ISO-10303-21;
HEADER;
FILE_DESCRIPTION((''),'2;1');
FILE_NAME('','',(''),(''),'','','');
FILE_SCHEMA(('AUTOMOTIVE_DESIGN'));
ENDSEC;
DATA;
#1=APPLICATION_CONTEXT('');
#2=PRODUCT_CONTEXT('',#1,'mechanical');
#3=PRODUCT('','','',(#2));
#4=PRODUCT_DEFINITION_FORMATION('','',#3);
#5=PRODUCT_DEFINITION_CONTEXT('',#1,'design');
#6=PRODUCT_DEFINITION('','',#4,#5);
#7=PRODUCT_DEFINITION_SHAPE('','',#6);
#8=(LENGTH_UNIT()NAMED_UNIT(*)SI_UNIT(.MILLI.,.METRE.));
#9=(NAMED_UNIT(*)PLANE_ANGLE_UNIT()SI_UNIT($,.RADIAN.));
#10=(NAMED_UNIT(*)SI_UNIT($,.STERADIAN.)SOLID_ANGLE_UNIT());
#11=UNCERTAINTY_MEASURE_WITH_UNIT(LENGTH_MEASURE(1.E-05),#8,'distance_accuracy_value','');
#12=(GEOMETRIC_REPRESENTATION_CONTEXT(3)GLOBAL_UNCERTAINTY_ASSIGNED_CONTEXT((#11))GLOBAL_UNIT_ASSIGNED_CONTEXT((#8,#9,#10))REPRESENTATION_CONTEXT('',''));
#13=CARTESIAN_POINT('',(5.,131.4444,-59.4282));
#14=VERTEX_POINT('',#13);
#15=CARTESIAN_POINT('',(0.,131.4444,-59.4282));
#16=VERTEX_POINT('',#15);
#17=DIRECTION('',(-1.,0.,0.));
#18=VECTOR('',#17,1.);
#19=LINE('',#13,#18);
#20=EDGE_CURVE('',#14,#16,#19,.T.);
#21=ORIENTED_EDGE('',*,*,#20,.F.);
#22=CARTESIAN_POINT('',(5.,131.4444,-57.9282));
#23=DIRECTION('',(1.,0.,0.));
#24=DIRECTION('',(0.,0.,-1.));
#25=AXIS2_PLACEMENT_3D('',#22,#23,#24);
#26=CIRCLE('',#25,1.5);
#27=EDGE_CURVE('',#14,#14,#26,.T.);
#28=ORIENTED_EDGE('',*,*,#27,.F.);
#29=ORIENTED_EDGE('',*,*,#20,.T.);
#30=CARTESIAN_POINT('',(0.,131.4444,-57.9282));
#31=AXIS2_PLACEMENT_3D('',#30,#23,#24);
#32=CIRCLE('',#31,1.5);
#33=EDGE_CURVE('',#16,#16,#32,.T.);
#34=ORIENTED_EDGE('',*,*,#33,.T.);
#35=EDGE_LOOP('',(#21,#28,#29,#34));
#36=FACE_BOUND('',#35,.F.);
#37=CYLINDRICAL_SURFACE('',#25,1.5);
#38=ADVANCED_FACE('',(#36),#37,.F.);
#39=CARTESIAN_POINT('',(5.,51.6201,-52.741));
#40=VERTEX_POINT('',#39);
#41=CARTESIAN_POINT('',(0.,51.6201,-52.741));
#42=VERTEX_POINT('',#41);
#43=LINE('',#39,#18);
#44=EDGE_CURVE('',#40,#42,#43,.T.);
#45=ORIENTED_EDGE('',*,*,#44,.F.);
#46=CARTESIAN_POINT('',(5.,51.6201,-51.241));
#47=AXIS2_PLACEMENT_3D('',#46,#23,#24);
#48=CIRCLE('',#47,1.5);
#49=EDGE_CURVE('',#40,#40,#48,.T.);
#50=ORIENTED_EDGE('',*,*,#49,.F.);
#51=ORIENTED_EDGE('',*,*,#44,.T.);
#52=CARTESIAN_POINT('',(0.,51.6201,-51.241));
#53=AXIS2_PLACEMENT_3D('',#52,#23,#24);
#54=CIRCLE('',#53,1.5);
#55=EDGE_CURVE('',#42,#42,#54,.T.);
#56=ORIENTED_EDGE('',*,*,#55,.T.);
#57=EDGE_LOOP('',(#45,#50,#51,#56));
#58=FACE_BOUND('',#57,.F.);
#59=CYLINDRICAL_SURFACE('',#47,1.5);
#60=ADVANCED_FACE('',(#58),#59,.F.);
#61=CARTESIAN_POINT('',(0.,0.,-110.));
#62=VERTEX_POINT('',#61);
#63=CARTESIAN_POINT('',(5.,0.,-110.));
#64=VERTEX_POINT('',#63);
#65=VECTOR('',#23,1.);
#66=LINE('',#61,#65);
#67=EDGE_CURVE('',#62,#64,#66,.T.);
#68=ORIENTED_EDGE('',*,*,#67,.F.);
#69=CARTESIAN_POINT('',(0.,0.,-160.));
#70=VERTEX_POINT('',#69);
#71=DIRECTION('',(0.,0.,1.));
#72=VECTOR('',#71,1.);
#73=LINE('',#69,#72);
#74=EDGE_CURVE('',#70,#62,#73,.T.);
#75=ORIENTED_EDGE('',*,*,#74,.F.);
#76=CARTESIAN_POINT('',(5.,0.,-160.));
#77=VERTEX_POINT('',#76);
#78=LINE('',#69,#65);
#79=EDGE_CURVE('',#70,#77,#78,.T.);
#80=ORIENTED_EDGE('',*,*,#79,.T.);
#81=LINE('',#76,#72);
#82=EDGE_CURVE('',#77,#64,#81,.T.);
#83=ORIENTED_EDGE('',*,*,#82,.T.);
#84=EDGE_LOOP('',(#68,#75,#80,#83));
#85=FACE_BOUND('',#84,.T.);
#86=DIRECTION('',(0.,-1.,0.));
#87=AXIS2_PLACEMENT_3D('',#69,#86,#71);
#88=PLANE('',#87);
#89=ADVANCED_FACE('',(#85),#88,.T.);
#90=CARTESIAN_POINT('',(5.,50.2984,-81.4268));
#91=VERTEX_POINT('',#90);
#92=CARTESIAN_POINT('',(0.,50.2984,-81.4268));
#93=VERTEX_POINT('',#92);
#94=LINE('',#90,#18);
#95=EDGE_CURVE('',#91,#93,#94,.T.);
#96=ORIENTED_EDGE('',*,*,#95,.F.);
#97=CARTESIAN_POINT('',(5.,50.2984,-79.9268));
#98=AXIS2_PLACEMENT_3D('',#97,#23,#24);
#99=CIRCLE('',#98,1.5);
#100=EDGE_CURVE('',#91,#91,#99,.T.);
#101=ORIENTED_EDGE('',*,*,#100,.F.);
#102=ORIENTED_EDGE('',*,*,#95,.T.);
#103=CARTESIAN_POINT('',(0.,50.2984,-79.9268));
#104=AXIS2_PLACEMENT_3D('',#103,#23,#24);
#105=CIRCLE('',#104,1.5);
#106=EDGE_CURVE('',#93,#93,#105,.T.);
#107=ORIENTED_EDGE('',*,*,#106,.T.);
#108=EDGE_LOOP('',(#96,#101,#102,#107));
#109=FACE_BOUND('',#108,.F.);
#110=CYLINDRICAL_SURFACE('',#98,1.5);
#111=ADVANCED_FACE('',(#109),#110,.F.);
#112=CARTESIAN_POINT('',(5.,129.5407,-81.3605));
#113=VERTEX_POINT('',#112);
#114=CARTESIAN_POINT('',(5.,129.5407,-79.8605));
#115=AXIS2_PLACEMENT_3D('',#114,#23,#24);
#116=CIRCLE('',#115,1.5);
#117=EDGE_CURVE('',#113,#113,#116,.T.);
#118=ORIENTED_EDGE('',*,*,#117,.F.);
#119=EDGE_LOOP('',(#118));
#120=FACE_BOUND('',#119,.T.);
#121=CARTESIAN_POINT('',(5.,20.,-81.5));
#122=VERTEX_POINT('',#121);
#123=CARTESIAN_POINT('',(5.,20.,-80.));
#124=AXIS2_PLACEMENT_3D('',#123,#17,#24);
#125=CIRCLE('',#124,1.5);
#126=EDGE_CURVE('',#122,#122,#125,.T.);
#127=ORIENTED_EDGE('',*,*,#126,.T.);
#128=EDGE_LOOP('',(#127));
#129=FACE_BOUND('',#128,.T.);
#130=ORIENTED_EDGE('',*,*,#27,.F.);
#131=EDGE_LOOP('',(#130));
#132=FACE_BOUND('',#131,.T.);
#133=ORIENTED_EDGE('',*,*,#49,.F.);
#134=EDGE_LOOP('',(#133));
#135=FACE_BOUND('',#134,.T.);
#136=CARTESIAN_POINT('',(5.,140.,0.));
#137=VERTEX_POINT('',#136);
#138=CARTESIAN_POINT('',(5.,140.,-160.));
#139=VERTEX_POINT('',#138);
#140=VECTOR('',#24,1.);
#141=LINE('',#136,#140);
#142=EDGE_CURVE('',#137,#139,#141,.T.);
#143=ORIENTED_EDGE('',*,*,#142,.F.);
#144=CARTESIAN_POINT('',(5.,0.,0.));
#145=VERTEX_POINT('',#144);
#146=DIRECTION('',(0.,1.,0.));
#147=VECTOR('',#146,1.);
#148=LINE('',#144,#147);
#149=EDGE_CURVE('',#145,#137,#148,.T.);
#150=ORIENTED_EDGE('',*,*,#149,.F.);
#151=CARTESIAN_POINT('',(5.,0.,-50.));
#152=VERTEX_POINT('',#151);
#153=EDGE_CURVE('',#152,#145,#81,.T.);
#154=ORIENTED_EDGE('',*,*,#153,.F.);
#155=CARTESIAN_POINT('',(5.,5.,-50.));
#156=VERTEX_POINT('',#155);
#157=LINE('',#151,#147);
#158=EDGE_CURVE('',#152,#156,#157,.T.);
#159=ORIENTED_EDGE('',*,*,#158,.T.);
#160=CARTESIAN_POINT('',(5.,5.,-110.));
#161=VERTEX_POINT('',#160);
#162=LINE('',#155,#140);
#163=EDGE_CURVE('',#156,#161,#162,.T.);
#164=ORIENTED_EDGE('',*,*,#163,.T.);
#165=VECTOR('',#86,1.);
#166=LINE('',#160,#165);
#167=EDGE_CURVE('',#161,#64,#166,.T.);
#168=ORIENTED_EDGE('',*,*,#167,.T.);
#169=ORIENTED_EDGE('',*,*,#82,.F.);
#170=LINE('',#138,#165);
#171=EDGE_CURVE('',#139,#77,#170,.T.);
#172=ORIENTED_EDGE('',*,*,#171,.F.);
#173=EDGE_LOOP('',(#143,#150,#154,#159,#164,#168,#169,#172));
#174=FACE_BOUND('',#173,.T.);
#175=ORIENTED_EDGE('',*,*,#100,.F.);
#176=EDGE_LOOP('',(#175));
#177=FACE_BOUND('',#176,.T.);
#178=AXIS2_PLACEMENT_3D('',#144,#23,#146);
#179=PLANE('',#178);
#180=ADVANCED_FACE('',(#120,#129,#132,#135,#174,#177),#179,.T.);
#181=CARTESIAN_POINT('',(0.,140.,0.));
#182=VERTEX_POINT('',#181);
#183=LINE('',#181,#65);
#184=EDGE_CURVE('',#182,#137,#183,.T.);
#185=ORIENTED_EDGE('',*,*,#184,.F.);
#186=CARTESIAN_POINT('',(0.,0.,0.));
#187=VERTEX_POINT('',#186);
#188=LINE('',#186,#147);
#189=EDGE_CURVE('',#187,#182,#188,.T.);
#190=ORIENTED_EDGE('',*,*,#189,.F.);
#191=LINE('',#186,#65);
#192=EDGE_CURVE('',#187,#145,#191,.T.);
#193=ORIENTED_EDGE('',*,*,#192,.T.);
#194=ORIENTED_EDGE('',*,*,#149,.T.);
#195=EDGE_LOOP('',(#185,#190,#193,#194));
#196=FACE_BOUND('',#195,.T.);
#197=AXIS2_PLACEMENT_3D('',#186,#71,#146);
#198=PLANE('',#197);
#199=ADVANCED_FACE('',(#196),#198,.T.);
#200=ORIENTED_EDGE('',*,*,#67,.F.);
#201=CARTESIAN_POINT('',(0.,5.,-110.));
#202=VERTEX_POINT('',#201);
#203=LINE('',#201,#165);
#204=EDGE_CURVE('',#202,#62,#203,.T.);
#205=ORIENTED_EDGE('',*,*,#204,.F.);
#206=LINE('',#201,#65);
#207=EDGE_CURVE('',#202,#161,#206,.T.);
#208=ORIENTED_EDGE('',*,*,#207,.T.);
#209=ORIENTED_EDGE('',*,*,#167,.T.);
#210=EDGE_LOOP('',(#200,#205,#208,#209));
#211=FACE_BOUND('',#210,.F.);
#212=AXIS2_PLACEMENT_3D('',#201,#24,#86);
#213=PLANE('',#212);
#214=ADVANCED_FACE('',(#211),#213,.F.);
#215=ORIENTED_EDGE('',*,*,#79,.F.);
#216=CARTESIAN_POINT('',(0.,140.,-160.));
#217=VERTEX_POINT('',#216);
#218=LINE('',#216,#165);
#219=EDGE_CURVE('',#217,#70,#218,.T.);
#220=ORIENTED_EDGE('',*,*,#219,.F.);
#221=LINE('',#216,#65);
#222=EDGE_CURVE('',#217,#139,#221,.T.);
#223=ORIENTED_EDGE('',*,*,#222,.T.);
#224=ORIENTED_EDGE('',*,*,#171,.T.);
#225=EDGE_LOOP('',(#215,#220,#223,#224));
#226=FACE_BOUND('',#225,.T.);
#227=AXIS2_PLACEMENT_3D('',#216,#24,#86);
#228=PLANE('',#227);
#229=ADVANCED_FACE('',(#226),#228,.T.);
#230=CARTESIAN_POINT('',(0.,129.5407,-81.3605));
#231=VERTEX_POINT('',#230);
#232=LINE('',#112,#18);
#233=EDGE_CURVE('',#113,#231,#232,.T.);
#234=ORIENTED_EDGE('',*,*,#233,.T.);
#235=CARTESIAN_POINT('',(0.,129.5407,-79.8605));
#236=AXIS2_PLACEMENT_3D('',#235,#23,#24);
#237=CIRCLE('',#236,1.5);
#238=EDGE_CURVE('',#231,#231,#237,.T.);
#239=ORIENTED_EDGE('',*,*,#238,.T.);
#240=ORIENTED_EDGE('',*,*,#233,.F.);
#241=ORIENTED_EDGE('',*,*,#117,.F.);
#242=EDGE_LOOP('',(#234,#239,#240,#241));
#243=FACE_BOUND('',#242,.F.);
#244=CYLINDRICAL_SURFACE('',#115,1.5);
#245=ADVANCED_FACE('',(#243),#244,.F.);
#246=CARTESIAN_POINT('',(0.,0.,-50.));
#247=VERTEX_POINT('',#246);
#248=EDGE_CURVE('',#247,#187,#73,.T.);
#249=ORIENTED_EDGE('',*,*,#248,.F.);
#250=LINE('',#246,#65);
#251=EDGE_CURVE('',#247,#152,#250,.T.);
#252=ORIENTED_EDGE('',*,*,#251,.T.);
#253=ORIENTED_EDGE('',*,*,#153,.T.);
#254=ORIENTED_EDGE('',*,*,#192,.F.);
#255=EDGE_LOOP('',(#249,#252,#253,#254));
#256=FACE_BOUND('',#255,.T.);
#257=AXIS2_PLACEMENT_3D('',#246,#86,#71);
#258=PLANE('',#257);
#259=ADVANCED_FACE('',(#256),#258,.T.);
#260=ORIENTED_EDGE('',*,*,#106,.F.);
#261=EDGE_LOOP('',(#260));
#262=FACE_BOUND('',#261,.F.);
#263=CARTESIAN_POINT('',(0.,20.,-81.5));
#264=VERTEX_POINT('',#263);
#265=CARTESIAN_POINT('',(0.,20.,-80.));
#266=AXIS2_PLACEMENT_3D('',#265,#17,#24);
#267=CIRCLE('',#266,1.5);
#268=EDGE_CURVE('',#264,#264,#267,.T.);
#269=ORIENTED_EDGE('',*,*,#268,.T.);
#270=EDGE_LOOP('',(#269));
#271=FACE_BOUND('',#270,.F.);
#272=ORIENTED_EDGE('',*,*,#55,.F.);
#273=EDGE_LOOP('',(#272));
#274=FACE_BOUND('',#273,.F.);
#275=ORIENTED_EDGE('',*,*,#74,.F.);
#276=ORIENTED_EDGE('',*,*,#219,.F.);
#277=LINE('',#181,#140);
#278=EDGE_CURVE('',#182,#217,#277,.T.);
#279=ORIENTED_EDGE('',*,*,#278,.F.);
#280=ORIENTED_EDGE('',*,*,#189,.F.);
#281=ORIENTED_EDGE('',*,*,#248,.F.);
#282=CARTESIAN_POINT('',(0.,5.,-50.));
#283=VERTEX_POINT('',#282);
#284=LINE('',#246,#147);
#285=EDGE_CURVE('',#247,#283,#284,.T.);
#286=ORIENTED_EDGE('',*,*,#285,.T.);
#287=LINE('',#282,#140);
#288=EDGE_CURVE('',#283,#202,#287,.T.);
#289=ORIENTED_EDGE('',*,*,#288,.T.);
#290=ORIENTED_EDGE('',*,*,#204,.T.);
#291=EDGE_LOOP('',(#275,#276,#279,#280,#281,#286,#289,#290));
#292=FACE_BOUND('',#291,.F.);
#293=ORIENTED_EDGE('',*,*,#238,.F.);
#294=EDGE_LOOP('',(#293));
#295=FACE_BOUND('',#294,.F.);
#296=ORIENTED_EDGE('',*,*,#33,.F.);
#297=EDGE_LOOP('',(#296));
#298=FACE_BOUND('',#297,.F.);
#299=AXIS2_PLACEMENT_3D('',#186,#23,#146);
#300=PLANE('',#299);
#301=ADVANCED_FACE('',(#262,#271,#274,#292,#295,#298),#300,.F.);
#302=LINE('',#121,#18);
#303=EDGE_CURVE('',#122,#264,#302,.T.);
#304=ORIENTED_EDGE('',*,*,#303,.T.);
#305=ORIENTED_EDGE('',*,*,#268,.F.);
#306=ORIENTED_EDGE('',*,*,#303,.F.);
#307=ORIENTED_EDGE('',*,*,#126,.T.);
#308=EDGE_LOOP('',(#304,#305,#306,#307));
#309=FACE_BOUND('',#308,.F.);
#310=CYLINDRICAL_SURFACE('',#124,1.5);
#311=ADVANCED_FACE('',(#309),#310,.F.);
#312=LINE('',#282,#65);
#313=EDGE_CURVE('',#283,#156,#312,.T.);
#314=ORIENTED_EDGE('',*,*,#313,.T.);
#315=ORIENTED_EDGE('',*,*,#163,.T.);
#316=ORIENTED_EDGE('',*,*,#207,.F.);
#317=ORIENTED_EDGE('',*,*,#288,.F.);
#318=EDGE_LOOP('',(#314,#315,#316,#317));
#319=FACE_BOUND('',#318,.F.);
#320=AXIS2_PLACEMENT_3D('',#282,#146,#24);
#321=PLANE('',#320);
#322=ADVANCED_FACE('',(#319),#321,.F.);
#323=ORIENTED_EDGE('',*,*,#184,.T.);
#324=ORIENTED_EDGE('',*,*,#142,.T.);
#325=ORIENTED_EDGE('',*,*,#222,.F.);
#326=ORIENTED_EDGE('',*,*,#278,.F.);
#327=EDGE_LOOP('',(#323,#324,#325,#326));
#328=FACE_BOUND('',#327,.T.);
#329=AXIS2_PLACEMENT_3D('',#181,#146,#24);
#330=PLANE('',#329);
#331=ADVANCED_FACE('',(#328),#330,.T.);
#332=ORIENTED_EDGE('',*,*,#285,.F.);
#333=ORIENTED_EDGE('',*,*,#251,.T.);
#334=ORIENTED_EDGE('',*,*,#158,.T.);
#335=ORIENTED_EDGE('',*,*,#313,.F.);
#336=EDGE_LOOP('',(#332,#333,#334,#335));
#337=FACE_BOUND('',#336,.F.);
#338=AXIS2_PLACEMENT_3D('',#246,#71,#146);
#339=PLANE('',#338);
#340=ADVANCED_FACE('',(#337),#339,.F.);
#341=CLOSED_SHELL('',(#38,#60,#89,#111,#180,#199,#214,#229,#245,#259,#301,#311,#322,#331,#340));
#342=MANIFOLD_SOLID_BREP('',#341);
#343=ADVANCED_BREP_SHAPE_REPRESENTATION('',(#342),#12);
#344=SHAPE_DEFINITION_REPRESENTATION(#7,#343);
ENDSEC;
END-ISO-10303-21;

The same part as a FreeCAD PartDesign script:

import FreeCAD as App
import Part
import Sketcher

V = App.Vector


def add_polygon(sketch, points):
    """Adds a closed chain of lines whose ends are joined by coincident constraints."""
    first, n = sketch.GeometryCount, len(points)
    for a, b in zip(points, points[1:] + points[:1]):
        sketch.addGeometry(Part.LineSegment(App.Vector(*a, 0), App.Vector(*b, 0)), False)
    for i in range(n):
        sketch.addConstraint(Sketcher.Constraint("Coincident", first + i, 2, first + (i + 1) % n, 1))

doc = App.newDocument("Part")
body = doc.addObject("PartDesign::Body", "Body")

sketch1 = body.newObject("Sketcher::SketchObject", "Sketch")
sketch1.AttachmentSupport = (doc.getObject("YZ_Plane"), [""])
sketch1.MapMode = "FlatFace"
add_polygon(sketch1, [(140, 0), (0, 0), (0, -50), (5, -50), (5, -110), (0, -110), (0, -160), (140, -160)])
sketch1.addConstraint(Sketcher.Constraint("Horizontal", 0))
sketch1.addConstraint(Sketcher.Constraint("Vertical", 1))
sketch1.addConstraint(Sketcher.Constraint("Horizontal", 2))
sketch1.addConstraint(Sketcher.Constraint("Vertical", 3))
sketch1.addConstraint(Sketcher.Constraint("Horizontal", 4))
sketch1.addConstraint(Sketcher.Constraint("Vertical", 5))
sketch1.addConstraint(Sketcher.Constraint("Horizontal", 6))
sketch1.addConstraint(Sketcher.Constraint("Vertical", 7))
sketch1.addConstraint(Sketcher.Constraint("Coincident", 0, 2, -1, 1))
sketch1.addConstraint(Sketcher.Constraint("PointOnObject", 4, 2, -2))
sketch1.addConstraint(Sketcher.Constraint("Equal", 1, 5))
sketch1.addConstraint(Sketcher.Constraint("DistanceX", 0, 2, 0, 1, 140.0))
sketch1.addConstraint(Sketcher.Constraint("DistanceX", 2, 1, 2, 2, 5.0))
sketch1.addConstraint(Sketcher.Constraint("DistanceY", 1, 2, 1, 1, 50.0))
sketch1.addConstraint(Sketcher.Constraint("DistanceY", 3, 2, 3, 1, 60.0))
pad1 = body.newObject("PartDesign::Pad", "Pad")
pad1.Profile = sketch1
pad1.Length = 5

sketch2 = body.newObject("Sketcher::SketchObject", "Sketch001")
sketch2.AttachmentSupport = (doc.getObject("YZ_Plane"), [""])
sketch2.MapMode = "FlatFace"
sketch2.AttachmentOffset = App.Placement(V(0, 0, 5), App.Rotation())
sketch2.addGeometry(Part.Circle(V(20, -80, 0), V(0, 0, 1), 1.5), False)
sketch2.addConstraint(Sketcher.Constraint("Diameter", 0, 3.0))
sketch2.addConstraint(Sketcher.Constraint("DistanceX", -1, 1, 0, 3, 20.0))
sketch2.addConstraint(Sketcher.Constraint("DistanceY", 0, 3, -1, 1, 80.0))
doc.recompute()
hole = body.newObject("PartDesign::Hole", "Hole")
hole.Profile = sketch2
hole.ThreadType = "None"
hole.Diameter = 3
hole.DepthType = "ThroughAll"

sketch3 = body.newObject("Sketcher::SketchObject", "Sketch002")
sketch3.AttachmentSupport = (doc.getObject("YZ_Plane"), [""])
sketch3.MapMode = "FlatFace"
sketch3.AttachmentOffset = App.Placement(V(0, 0, 5), App.Rotation())
sketch3.addGeometry(Part.Circle(V(131.4, -57.9, 0), V(0, 0, 1), 1.5), False)
sketch3.addGeometry(Part.Circle(V(129.5, -79.9, 0), V(0, 0, 1), 1.5), False)
sketch3.addGeometry(Part.Circle(V(51.6, -51.2, 0), V(0, 0, 1), 1.5), False)
sketch3.addGeometry(Part.Circle(V(50.3, -79.9, 0), V(0, 0, 1), 1.5), False)
sketch3.addConstraint(Sketcher.Constraint("Equal", 0, 1))
sketch3.addConstraint(Sketcher.Constraint("Equal", 1, 2))
sketch3.addConstraint(Sketcher.Constraint("Equal", 2, 3))
sketch3.addConstraint(Sketcher.Constraint("Diameter", 0, 3.0))
sketch3.addConstraint(Sketcher.Constraint("DistanceX", -1, 1, 2, 3, 51.62))
sketch3.addConstraint(Sketcher.Constraint("DistanceY", 2, 3, -1, 1, 51.241))
sketch3.addConstraint(Sketcher.Constraint("DistanceX", 3, 3, 0, 3, 81.146))
sketch3.addConstraint(Sketcher.Constraint("DistanceX", -1, 1, 0, 3, 131.4444))
sketch3.addConstraint(Sketcher.Constraint("DistanceY", 0, 3, -1, 1, 57.9282))
sketch3.addConstraint(Sketcher.Constraint("DistanceX", -1, 1, 1, 3, 129.5407))
sketch3.addConstraint(Sketcher.Constraint("DistanceY", 1, 3, -1, 1, 79.8605))
sketch3.addConstraint(Sketcher.Constraint("DistanceY", 3, 3, -1, 1, 79.9268))
pocket1 = body.newObject("PartDesign::Pocket", "Pocket")
pocket1.Profile = sketch3
pocket1.Length = 10

doc.recompute()
